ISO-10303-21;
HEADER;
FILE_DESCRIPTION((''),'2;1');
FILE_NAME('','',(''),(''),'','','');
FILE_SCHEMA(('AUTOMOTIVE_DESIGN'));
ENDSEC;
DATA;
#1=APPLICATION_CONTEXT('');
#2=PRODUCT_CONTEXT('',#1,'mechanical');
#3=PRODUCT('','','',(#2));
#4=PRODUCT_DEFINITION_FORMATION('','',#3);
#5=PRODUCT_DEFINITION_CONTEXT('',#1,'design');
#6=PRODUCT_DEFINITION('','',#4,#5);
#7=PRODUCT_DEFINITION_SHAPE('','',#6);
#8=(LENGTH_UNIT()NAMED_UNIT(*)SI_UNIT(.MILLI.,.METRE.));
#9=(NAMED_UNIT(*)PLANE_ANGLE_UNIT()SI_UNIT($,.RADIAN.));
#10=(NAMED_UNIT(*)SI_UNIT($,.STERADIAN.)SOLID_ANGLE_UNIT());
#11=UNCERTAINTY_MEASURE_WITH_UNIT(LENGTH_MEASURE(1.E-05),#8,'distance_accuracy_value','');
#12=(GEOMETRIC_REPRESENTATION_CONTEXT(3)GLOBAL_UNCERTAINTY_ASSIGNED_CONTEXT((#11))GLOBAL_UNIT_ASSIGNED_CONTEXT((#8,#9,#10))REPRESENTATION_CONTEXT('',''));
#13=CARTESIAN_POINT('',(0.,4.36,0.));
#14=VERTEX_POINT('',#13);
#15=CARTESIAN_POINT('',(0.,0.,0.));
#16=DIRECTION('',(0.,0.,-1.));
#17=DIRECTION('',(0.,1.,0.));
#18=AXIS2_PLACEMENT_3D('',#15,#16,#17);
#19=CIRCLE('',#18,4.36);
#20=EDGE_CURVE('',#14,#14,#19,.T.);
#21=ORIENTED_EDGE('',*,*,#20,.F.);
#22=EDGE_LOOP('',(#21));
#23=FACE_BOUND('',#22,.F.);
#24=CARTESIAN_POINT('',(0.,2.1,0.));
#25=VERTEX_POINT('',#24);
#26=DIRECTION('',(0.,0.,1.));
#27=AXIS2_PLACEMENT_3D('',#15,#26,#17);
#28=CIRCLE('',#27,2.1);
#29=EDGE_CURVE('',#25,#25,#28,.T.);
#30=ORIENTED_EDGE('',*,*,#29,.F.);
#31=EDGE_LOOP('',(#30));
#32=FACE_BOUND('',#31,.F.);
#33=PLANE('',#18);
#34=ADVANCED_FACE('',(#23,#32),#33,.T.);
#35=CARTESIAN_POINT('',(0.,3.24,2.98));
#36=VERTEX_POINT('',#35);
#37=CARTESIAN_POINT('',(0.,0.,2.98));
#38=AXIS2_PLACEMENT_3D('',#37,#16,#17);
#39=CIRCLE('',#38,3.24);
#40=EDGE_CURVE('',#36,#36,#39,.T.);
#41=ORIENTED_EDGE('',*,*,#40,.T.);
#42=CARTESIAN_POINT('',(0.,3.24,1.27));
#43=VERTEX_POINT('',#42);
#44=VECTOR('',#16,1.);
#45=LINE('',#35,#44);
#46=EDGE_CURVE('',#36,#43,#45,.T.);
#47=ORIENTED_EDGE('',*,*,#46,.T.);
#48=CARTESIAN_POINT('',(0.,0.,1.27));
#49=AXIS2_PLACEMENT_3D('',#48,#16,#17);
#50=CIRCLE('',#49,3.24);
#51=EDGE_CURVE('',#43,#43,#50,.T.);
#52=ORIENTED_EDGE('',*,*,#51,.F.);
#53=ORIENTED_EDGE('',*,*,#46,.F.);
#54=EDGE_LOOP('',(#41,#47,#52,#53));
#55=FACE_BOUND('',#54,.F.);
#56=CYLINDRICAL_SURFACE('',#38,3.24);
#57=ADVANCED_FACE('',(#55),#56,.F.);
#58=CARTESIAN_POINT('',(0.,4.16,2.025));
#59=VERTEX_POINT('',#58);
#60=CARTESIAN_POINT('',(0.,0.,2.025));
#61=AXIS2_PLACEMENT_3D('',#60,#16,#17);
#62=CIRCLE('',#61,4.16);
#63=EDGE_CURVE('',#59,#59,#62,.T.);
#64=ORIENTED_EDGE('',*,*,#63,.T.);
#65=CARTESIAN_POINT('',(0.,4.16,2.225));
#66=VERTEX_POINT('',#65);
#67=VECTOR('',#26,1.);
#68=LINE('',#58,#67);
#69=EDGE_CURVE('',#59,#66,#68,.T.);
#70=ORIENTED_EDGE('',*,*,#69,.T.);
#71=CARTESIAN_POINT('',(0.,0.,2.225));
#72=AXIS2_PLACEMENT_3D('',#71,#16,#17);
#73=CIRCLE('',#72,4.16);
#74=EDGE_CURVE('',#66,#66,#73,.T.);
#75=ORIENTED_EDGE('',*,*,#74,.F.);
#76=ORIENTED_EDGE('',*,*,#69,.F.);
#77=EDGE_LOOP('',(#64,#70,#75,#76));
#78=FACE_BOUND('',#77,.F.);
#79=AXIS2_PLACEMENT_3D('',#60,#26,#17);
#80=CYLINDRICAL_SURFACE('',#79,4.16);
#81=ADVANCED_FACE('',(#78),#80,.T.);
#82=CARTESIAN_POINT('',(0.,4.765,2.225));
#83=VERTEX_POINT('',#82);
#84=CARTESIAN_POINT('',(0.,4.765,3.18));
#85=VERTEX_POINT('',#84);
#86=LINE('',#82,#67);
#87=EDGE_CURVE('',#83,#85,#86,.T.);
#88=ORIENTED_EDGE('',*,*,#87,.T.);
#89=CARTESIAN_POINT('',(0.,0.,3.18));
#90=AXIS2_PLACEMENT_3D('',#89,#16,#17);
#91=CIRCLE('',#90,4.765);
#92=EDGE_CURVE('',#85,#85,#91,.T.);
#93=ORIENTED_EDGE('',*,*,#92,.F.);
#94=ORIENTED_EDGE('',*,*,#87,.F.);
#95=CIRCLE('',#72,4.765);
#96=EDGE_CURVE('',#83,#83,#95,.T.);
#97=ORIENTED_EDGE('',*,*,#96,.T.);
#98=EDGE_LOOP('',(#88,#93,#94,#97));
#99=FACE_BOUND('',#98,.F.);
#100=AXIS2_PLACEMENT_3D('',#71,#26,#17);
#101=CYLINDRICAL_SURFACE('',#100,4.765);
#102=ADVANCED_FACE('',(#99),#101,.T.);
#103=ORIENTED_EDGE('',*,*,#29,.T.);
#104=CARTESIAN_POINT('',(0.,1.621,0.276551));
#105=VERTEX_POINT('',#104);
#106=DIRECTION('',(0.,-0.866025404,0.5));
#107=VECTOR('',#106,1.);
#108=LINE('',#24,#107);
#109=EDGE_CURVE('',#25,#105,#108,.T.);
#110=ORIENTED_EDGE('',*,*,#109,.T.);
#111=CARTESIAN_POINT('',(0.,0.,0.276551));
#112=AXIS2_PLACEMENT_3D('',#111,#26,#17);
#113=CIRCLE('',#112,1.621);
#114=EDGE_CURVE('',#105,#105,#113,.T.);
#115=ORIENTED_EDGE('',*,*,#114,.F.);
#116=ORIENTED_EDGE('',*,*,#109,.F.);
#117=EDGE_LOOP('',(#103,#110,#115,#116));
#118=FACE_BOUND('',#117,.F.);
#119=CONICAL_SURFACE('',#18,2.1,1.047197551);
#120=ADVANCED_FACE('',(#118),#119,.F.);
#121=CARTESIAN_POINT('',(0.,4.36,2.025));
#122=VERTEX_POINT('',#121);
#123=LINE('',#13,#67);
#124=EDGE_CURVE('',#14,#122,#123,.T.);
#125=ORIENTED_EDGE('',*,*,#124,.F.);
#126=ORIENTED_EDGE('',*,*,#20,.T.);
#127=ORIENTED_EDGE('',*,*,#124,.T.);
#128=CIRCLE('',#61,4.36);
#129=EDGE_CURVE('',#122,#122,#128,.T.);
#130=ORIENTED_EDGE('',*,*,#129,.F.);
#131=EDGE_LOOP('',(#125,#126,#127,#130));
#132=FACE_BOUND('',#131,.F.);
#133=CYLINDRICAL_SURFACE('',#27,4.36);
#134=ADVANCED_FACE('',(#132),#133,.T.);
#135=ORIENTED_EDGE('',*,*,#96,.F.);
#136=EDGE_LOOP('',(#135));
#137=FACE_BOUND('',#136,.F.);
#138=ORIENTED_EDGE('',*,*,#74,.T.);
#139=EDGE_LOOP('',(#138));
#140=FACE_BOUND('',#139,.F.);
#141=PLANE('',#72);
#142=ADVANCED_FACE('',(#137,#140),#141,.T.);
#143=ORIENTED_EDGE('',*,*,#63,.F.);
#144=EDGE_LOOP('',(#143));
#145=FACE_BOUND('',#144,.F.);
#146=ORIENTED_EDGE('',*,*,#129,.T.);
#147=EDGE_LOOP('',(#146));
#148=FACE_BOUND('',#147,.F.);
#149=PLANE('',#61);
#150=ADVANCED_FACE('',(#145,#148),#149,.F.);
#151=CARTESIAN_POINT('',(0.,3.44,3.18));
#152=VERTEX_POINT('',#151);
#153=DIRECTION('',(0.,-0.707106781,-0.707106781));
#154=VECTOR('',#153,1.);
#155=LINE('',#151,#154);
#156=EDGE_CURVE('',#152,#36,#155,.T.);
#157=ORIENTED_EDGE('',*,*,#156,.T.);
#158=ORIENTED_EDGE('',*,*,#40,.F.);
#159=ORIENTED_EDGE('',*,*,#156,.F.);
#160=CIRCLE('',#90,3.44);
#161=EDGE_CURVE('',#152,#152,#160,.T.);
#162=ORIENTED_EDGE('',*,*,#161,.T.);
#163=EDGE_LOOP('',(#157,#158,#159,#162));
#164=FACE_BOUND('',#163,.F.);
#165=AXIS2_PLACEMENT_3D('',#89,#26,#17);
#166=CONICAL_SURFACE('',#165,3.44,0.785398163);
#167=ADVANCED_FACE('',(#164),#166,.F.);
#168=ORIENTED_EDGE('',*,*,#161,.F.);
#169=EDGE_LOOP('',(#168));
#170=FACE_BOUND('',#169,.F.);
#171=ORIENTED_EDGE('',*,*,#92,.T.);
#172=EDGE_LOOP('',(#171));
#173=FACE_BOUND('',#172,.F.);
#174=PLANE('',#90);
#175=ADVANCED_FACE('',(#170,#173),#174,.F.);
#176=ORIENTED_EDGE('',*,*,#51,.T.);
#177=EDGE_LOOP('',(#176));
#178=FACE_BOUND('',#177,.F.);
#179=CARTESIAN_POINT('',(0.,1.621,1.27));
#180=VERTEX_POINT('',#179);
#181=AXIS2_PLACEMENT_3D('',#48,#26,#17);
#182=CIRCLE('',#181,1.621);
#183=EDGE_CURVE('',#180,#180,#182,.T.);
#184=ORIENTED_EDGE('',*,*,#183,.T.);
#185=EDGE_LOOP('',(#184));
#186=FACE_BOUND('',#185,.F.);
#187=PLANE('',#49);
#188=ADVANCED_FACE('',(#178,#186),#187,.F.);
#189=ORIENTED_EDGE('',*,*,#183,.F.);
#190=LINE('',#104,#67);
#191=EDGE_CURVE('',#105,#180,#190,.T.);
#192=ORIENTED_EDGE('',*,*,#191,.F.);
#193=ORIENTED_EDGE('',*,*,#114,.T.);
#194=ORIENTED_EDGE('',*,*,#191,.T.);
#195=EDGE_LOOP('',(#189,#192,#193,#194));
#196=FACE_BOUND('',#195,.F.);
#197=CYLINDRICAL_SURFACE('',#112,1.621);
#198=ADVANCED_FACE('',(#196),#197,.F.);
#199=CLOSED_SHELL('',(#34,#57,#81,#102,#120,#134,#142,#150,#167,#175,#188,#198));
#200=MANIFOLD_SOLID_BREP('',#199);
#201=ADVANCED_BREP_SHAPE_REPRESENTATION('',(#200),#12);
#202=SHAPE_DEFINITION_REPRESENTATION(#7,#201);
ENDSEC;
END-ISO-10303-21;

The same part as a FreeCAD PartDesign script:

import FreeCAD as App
import Part
import Sketcher

V = App.Vector

doc = App.newDocument("Part")
body = doc.addObject("PartDesign::Body", "Body")

sketch1 = body.newObject("Sketcher::SketchObject", "Sketch")
sketch1.AttachmentSupport = (doc.getObject("YZ_Plane"), [""])
sketch1.MapMode = "FlatFace"
sketch1.addGeometry(Part.LineSegment(V(0, 1.27, 0), V(0, 0, 0)), False)
sketch1.addGeometry(Part.LineSegment(V(0, 0, 0), V(4.36, 0, 0)), False)
sketch1.addGeometry(Part.LineSegment(V(4.36, 0, 0), V(4.36, 2.02, 0)), False)
sketch1.addGeometry(Part.LineSegment(V(4.36, 2.02, 0), V(4.16, 2.02, 0)), False)
sketch1.addGeometry(Part.LineSegment(V(4.16, 2.02, 0), V(4.16, 2.23, 0)), False)
sketch1.addGeometry(Part.LineSegment(V(4.16, 2.23, 0), V(4.76, 2.23, 0)), False)
sketch1.addGeometry(Part.LineSegment(V(4.76, 2.23, 0), V(4.76, 3.18, 0)), False)
sketch1.addGeometry(Part.LineSegment(V(4.76, 3.18, 0), V(3.44, 3.18, 0)), False)
sketch1.addGeometry(Part.LineSegment(V(3.44, 3.18, 0), V(3.24, 2.98, 0)), False)
sketch1.addGeometry(Part.LineSegment(V(3.24, 2.98, 0), V(3.24, 1.27, 0)), False)
sketch1.addGeometry(Part.LineSegment(V(3.24, 1.27, 0), V(0, 1.27, 0)), False)
sketch1.addConstraint(Sketcher.Constraint("Coincident", 0, 2, 1, 1))
sketch1.addConstraint(Sketcher.Constraint("Coincident", 1, 2, 2, 1))
sketch1.addConstraint(Sketcher.Constraint("Coincident", 2, 2, 3, 1))
sketch1.addConstraint(Sketcher.Constraint("Coincident", 3, 2, 4, 1))
sketch1.addConstraint(Sketcher.Constraint("Coincident", 4, 2, 5, 1))
sketch1.addConstraint(Sketcher.Constraint("Coincident", 5, 2, 6, 1))
sketch1.addConstraint(Sketcher.Constraint("Coincident", 6, 2, 7, 1))
sketch1.addConstraint(Sketcher.Constraint("Coincident", 7, 2, 8, 1))
sketch1.addConstraint(Sketcher.Constraint("Coincident", 8, 2, 9, 1))
sketch1.addConstraint(Sketcher.Constraint("Coincident", 9, 2, 10, 1))
sketch1.addConstraint(Sketcher.Constraint("Coincident", 10, 2, 0, 1))
sketch1.addConstraint(Sketcher.Constraint("Vertical", 0))
sketch1.addConstraint(Sketcher.Constraint("Horizontal", 1))
sketch1.addConstraint(Sketcher.Constraint("Vertical", 2))
sketch1.addConstraint(Sketcher.Constraint("Horizontal", 3))
sketch1.addConstraint(Sketcher.Constraint("Vertical", 4))
sketch1.addConstraint(Sketcher.Constraint("Horizontal", 5))
sketch1.addConstraint(Sketcher.Constraint("Vertical", 6))
sketch1.addConstraint(Sketcher.Constraint("Horizontal", 7))
sketch1.addConstraint(Sketcher.Constraint("Vertical", 9))
sketch1.addConstraint(Sketcher.Constraint("Horizontal", 10))
sketch1.addConstraint(Sketcher.Constraint("Coincident", 0, 2, -1, 1))
sketch1.addConstraint(Sketcher.Constraint("Equal", 3, 4))
sketch1.addConstraint(Sketcher.Constraint("DistanceX", 3, 2, 3, 1, 0.2))
sketch1.addConstraint(Sketcher.Constraint("DistanceX", 8, 2, 7, 2, 0.2))
sketch1.addConstraint(Sketcher.Constraint("DistanceY", 8, 2, 7, 2, 0.2))
sketch1.addConstraint(Sketcher.Constraint("DistanceY", 6, 1, 6, 2, 0.955))
sketch1.addConstraint(Sketcher.Constraint("DistanceY", -1, 1, 6, 2, 3.18))
sketch1.addConstraint(Sketcher.Constraint("DistanceY", 10, 2, 7, 2, 1.91))
sketch1.addConstraint(Sketcher.Constraint("DistanceX", 1, 1, 1, 2, 4.36))
sketch1.addConstraint(Sketcher.Constraint("DistanceX", 10, 2, 10, 1, 3.24))
sketch1.addConstraint(Sketcher.Constraint("DistanceX", 5, 1, 5, 2, 0.605))
revolution = body.newObject("PartDesign::Revolution", "Revolution")
revolution.Profile = sketch1
revolution.ReferenceAxis = (sketch1, ["V_Axis"])
revolution.Angle = 360

sketch2 = body.newObject("Sketcher::SketchObject", "Sketch001")
sketch2.AttachmentSupport = (doc.getObject("XY_Plane"), [""])
sketch2.MapMode = "FlatFace"
sketch2.addGeometry(Part.Circle(V(0, 0, 0), V(0, 0, 1), 1.6), False)
sketch2.addConstraint(Sketcher.Constraint("Coincident", 0, 3, -1, 1))
sketch2.addConstraint(Sketcher.Constraint("Diameter", 0, 3.242))
doc.recompute()
hole = body.newObject("PartDesign::Hole", "Hole")
hole.Profile = sketch2
hole.ThreadType = "None"
hole.Diameter = 3.242
hole.DepthType = "ThroughAll"
hole.HoleCutType = "Countersink"
hole.HoleCutDiameter = 4.2
hole.HoleCutCountersinkAngle = 120
hole.Reversed = True

doc.recompute()
